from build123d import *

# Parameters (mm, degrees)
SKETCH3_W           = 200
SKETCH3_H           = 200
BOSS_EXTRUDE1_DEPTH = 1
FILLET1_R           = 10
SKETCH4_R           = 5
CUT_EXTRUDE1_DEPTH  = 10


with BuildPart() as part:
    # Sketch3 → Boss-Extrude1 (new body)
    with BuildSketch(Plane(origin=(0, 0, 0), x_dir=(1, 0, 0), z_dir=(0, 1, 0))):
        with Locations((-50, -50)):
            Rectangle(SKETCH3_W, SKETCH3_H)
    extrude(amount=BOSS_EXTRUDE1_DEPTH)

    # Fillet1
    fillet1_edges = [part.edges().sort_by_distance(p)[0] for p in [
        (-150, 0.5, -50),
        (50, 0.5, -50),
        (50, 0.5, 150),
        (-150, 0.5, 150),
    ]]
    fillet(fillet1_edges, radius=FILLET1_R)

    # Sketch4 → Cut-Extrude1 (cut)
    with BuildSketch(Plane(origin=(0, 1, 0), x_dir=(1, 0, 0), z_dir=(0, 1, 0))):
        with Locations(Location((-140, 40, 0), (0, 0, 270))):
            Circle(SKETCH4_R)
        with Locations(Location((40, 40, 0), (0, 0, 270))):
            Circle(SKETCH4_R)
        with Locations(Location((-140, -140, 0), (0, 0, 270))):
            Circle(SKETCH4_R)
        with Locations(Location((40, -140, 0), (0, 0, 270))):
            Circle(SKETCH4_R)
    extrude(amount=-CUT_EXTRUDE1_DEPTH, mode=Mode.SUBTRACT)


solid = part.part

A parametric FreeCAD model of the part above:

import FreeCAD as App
import Part
import Sketcher


def edges_at(feature, points):
    """Names of the edges that pass closest to the given points."""
    edges = feature.Shape.Edges
    near = lambda p: min(range(len(edges)), key=lambda i: edges[i].distToShape(Part.Vertex(*p))[0])
    return sorted({f"Edge{near(p) + 1}" for p in points})

doc = App.newDocument("Part")
body = doc.addObject("PartDesign::Body", "Body")

sketch1 = body.newObject("Sketcher::SketchObject", "Sketch")
sketch1.AttachmentSupport = (doc.getObject("XZ_Plane"), [""])
sketch1.MapMode = "FlatFace"
sketch1.addGeometry([
    Part.LineSegment(App.Vector(-150, -50, 0), App.Vector(-150, 150, 0)),
    Part.LineSegment(App.Vector(-150, 150, 0), App.Vector(50, 150, 0)),
    Part.LineSegment(App.Vector(50, 150, 0), App.Vector(50, -50, 0)),
    Part.LineSegment(App.Vector(50, -50, 0), App.Vector(-150, -50, 0)),
], False)
sketch1.addConstraint([
    Sketcher.Constraint("Coincident", 0, 2, 1, 1),
    Sketcher.Constraint("Coincident", 1, 2, 2, 1),
    Sketcher.Constraint("Coincident", 2, 2, 3, 1),
    Sketcher.Constraint("Coincident", 3, 2, 0, 1),
    Sketcher.Constraint("Vertical", 0),
    Sketcher.Constraint("Horizontal", 1),
    Sketcher.Constraint("Vertical", 2),
    Sketcher.Constraint("Horizontal", 3),
    Sketcher.Constraint("Equal", 3, 0),
    Sketcher.Constraint("DistanceX", 1, 1, 1, 2, 200.0),
    Sketcher.Constraint("DistanceX", 0, 2, -1, 1, 150.0),
    Sketcher.Constraint("DistanceY", -1, 1, 0, 2, 150.0),
])
pad1 = body.newObject("PartDesign::Pad", "Pad")
pad1.Profile = sketch1
pad1.Length = 1
pad1.Reversed = True
doc.recompute()

fillet = body.newObject("PartDesign::Fillet", "Fillet")
fillet.Base = (pad1, edges_at(pad1, [
    (-150, 0.5, -50),
    (50, 0.5, -50),
    (50, 0.5, 150),
    (-150, 0.5, 150),
]))
fillet.Radius = 10

sketch2 = body.newObject("Sketcher::SketchObject", "Sketch001")
sketch2.AttachmentSupport = (doc.getObject("XZ_Plane"), [""])
sketch2.MapMode = "FlatFace"
sketch2.AttachmentOffset = App.Placement(App.Vector(0, 0, -1), App.Rotation())
sketch2.addGeometry([
    Part.Circle(App.Vector(-140, -40, 0), App.Vector(0, 0, 1), 5),
    Part.Circle(App.Vector(40, -40, 0), App.Vector(0, 0, 1), 5),
    Part.Circle(App.Vector(-140, 140, 0), App.Vector(0, 0, 1), 5),
    Part.Circle(App.Vector(40, 140, 0), App.Vector(0, 0, 1), 5),
], False)
sketch2.addConstraint([
    Sketcher.Constraint("Equal", 0, 1),
    Sketcher.Constraint("Equal", 1, 2),
    Sketcher.Constraint("Equal", 2, 3),
    Sketcher.Constraint("Horizontal", 0, 3, 1, 3),
    Sketcher.Constraint("Horizontal", 2, 3, 3, 3),
    Sketcher.Constraint("Vertical", 0, 3, 2, 3),
    Sketcher.Constraint("Vertical", 1, 3, 3, 3),
    Sketcher.Constraint("Diameter", 0, 10.0),
    Sketcher.Constraint("DistanceX", 0, 3, -1, 1, 140.0),
    Sketcher.Constraint("DistanceY", 0, 3, -1, 1, 40.0),
    Sketcher.Constraint("DistanceX", -1, 1, 1, 3, 40.0),
    Sketcher.Constraint("DistanceY", -1, 1, 2, 3, 140.0),
])
pocket1 = body.newObject("PartDesign::Pocket", "Pocket")
pocket1.Profile = sketch2
pocket1.Length = 10
pocket1.Reversed = True

doc.recompute()
